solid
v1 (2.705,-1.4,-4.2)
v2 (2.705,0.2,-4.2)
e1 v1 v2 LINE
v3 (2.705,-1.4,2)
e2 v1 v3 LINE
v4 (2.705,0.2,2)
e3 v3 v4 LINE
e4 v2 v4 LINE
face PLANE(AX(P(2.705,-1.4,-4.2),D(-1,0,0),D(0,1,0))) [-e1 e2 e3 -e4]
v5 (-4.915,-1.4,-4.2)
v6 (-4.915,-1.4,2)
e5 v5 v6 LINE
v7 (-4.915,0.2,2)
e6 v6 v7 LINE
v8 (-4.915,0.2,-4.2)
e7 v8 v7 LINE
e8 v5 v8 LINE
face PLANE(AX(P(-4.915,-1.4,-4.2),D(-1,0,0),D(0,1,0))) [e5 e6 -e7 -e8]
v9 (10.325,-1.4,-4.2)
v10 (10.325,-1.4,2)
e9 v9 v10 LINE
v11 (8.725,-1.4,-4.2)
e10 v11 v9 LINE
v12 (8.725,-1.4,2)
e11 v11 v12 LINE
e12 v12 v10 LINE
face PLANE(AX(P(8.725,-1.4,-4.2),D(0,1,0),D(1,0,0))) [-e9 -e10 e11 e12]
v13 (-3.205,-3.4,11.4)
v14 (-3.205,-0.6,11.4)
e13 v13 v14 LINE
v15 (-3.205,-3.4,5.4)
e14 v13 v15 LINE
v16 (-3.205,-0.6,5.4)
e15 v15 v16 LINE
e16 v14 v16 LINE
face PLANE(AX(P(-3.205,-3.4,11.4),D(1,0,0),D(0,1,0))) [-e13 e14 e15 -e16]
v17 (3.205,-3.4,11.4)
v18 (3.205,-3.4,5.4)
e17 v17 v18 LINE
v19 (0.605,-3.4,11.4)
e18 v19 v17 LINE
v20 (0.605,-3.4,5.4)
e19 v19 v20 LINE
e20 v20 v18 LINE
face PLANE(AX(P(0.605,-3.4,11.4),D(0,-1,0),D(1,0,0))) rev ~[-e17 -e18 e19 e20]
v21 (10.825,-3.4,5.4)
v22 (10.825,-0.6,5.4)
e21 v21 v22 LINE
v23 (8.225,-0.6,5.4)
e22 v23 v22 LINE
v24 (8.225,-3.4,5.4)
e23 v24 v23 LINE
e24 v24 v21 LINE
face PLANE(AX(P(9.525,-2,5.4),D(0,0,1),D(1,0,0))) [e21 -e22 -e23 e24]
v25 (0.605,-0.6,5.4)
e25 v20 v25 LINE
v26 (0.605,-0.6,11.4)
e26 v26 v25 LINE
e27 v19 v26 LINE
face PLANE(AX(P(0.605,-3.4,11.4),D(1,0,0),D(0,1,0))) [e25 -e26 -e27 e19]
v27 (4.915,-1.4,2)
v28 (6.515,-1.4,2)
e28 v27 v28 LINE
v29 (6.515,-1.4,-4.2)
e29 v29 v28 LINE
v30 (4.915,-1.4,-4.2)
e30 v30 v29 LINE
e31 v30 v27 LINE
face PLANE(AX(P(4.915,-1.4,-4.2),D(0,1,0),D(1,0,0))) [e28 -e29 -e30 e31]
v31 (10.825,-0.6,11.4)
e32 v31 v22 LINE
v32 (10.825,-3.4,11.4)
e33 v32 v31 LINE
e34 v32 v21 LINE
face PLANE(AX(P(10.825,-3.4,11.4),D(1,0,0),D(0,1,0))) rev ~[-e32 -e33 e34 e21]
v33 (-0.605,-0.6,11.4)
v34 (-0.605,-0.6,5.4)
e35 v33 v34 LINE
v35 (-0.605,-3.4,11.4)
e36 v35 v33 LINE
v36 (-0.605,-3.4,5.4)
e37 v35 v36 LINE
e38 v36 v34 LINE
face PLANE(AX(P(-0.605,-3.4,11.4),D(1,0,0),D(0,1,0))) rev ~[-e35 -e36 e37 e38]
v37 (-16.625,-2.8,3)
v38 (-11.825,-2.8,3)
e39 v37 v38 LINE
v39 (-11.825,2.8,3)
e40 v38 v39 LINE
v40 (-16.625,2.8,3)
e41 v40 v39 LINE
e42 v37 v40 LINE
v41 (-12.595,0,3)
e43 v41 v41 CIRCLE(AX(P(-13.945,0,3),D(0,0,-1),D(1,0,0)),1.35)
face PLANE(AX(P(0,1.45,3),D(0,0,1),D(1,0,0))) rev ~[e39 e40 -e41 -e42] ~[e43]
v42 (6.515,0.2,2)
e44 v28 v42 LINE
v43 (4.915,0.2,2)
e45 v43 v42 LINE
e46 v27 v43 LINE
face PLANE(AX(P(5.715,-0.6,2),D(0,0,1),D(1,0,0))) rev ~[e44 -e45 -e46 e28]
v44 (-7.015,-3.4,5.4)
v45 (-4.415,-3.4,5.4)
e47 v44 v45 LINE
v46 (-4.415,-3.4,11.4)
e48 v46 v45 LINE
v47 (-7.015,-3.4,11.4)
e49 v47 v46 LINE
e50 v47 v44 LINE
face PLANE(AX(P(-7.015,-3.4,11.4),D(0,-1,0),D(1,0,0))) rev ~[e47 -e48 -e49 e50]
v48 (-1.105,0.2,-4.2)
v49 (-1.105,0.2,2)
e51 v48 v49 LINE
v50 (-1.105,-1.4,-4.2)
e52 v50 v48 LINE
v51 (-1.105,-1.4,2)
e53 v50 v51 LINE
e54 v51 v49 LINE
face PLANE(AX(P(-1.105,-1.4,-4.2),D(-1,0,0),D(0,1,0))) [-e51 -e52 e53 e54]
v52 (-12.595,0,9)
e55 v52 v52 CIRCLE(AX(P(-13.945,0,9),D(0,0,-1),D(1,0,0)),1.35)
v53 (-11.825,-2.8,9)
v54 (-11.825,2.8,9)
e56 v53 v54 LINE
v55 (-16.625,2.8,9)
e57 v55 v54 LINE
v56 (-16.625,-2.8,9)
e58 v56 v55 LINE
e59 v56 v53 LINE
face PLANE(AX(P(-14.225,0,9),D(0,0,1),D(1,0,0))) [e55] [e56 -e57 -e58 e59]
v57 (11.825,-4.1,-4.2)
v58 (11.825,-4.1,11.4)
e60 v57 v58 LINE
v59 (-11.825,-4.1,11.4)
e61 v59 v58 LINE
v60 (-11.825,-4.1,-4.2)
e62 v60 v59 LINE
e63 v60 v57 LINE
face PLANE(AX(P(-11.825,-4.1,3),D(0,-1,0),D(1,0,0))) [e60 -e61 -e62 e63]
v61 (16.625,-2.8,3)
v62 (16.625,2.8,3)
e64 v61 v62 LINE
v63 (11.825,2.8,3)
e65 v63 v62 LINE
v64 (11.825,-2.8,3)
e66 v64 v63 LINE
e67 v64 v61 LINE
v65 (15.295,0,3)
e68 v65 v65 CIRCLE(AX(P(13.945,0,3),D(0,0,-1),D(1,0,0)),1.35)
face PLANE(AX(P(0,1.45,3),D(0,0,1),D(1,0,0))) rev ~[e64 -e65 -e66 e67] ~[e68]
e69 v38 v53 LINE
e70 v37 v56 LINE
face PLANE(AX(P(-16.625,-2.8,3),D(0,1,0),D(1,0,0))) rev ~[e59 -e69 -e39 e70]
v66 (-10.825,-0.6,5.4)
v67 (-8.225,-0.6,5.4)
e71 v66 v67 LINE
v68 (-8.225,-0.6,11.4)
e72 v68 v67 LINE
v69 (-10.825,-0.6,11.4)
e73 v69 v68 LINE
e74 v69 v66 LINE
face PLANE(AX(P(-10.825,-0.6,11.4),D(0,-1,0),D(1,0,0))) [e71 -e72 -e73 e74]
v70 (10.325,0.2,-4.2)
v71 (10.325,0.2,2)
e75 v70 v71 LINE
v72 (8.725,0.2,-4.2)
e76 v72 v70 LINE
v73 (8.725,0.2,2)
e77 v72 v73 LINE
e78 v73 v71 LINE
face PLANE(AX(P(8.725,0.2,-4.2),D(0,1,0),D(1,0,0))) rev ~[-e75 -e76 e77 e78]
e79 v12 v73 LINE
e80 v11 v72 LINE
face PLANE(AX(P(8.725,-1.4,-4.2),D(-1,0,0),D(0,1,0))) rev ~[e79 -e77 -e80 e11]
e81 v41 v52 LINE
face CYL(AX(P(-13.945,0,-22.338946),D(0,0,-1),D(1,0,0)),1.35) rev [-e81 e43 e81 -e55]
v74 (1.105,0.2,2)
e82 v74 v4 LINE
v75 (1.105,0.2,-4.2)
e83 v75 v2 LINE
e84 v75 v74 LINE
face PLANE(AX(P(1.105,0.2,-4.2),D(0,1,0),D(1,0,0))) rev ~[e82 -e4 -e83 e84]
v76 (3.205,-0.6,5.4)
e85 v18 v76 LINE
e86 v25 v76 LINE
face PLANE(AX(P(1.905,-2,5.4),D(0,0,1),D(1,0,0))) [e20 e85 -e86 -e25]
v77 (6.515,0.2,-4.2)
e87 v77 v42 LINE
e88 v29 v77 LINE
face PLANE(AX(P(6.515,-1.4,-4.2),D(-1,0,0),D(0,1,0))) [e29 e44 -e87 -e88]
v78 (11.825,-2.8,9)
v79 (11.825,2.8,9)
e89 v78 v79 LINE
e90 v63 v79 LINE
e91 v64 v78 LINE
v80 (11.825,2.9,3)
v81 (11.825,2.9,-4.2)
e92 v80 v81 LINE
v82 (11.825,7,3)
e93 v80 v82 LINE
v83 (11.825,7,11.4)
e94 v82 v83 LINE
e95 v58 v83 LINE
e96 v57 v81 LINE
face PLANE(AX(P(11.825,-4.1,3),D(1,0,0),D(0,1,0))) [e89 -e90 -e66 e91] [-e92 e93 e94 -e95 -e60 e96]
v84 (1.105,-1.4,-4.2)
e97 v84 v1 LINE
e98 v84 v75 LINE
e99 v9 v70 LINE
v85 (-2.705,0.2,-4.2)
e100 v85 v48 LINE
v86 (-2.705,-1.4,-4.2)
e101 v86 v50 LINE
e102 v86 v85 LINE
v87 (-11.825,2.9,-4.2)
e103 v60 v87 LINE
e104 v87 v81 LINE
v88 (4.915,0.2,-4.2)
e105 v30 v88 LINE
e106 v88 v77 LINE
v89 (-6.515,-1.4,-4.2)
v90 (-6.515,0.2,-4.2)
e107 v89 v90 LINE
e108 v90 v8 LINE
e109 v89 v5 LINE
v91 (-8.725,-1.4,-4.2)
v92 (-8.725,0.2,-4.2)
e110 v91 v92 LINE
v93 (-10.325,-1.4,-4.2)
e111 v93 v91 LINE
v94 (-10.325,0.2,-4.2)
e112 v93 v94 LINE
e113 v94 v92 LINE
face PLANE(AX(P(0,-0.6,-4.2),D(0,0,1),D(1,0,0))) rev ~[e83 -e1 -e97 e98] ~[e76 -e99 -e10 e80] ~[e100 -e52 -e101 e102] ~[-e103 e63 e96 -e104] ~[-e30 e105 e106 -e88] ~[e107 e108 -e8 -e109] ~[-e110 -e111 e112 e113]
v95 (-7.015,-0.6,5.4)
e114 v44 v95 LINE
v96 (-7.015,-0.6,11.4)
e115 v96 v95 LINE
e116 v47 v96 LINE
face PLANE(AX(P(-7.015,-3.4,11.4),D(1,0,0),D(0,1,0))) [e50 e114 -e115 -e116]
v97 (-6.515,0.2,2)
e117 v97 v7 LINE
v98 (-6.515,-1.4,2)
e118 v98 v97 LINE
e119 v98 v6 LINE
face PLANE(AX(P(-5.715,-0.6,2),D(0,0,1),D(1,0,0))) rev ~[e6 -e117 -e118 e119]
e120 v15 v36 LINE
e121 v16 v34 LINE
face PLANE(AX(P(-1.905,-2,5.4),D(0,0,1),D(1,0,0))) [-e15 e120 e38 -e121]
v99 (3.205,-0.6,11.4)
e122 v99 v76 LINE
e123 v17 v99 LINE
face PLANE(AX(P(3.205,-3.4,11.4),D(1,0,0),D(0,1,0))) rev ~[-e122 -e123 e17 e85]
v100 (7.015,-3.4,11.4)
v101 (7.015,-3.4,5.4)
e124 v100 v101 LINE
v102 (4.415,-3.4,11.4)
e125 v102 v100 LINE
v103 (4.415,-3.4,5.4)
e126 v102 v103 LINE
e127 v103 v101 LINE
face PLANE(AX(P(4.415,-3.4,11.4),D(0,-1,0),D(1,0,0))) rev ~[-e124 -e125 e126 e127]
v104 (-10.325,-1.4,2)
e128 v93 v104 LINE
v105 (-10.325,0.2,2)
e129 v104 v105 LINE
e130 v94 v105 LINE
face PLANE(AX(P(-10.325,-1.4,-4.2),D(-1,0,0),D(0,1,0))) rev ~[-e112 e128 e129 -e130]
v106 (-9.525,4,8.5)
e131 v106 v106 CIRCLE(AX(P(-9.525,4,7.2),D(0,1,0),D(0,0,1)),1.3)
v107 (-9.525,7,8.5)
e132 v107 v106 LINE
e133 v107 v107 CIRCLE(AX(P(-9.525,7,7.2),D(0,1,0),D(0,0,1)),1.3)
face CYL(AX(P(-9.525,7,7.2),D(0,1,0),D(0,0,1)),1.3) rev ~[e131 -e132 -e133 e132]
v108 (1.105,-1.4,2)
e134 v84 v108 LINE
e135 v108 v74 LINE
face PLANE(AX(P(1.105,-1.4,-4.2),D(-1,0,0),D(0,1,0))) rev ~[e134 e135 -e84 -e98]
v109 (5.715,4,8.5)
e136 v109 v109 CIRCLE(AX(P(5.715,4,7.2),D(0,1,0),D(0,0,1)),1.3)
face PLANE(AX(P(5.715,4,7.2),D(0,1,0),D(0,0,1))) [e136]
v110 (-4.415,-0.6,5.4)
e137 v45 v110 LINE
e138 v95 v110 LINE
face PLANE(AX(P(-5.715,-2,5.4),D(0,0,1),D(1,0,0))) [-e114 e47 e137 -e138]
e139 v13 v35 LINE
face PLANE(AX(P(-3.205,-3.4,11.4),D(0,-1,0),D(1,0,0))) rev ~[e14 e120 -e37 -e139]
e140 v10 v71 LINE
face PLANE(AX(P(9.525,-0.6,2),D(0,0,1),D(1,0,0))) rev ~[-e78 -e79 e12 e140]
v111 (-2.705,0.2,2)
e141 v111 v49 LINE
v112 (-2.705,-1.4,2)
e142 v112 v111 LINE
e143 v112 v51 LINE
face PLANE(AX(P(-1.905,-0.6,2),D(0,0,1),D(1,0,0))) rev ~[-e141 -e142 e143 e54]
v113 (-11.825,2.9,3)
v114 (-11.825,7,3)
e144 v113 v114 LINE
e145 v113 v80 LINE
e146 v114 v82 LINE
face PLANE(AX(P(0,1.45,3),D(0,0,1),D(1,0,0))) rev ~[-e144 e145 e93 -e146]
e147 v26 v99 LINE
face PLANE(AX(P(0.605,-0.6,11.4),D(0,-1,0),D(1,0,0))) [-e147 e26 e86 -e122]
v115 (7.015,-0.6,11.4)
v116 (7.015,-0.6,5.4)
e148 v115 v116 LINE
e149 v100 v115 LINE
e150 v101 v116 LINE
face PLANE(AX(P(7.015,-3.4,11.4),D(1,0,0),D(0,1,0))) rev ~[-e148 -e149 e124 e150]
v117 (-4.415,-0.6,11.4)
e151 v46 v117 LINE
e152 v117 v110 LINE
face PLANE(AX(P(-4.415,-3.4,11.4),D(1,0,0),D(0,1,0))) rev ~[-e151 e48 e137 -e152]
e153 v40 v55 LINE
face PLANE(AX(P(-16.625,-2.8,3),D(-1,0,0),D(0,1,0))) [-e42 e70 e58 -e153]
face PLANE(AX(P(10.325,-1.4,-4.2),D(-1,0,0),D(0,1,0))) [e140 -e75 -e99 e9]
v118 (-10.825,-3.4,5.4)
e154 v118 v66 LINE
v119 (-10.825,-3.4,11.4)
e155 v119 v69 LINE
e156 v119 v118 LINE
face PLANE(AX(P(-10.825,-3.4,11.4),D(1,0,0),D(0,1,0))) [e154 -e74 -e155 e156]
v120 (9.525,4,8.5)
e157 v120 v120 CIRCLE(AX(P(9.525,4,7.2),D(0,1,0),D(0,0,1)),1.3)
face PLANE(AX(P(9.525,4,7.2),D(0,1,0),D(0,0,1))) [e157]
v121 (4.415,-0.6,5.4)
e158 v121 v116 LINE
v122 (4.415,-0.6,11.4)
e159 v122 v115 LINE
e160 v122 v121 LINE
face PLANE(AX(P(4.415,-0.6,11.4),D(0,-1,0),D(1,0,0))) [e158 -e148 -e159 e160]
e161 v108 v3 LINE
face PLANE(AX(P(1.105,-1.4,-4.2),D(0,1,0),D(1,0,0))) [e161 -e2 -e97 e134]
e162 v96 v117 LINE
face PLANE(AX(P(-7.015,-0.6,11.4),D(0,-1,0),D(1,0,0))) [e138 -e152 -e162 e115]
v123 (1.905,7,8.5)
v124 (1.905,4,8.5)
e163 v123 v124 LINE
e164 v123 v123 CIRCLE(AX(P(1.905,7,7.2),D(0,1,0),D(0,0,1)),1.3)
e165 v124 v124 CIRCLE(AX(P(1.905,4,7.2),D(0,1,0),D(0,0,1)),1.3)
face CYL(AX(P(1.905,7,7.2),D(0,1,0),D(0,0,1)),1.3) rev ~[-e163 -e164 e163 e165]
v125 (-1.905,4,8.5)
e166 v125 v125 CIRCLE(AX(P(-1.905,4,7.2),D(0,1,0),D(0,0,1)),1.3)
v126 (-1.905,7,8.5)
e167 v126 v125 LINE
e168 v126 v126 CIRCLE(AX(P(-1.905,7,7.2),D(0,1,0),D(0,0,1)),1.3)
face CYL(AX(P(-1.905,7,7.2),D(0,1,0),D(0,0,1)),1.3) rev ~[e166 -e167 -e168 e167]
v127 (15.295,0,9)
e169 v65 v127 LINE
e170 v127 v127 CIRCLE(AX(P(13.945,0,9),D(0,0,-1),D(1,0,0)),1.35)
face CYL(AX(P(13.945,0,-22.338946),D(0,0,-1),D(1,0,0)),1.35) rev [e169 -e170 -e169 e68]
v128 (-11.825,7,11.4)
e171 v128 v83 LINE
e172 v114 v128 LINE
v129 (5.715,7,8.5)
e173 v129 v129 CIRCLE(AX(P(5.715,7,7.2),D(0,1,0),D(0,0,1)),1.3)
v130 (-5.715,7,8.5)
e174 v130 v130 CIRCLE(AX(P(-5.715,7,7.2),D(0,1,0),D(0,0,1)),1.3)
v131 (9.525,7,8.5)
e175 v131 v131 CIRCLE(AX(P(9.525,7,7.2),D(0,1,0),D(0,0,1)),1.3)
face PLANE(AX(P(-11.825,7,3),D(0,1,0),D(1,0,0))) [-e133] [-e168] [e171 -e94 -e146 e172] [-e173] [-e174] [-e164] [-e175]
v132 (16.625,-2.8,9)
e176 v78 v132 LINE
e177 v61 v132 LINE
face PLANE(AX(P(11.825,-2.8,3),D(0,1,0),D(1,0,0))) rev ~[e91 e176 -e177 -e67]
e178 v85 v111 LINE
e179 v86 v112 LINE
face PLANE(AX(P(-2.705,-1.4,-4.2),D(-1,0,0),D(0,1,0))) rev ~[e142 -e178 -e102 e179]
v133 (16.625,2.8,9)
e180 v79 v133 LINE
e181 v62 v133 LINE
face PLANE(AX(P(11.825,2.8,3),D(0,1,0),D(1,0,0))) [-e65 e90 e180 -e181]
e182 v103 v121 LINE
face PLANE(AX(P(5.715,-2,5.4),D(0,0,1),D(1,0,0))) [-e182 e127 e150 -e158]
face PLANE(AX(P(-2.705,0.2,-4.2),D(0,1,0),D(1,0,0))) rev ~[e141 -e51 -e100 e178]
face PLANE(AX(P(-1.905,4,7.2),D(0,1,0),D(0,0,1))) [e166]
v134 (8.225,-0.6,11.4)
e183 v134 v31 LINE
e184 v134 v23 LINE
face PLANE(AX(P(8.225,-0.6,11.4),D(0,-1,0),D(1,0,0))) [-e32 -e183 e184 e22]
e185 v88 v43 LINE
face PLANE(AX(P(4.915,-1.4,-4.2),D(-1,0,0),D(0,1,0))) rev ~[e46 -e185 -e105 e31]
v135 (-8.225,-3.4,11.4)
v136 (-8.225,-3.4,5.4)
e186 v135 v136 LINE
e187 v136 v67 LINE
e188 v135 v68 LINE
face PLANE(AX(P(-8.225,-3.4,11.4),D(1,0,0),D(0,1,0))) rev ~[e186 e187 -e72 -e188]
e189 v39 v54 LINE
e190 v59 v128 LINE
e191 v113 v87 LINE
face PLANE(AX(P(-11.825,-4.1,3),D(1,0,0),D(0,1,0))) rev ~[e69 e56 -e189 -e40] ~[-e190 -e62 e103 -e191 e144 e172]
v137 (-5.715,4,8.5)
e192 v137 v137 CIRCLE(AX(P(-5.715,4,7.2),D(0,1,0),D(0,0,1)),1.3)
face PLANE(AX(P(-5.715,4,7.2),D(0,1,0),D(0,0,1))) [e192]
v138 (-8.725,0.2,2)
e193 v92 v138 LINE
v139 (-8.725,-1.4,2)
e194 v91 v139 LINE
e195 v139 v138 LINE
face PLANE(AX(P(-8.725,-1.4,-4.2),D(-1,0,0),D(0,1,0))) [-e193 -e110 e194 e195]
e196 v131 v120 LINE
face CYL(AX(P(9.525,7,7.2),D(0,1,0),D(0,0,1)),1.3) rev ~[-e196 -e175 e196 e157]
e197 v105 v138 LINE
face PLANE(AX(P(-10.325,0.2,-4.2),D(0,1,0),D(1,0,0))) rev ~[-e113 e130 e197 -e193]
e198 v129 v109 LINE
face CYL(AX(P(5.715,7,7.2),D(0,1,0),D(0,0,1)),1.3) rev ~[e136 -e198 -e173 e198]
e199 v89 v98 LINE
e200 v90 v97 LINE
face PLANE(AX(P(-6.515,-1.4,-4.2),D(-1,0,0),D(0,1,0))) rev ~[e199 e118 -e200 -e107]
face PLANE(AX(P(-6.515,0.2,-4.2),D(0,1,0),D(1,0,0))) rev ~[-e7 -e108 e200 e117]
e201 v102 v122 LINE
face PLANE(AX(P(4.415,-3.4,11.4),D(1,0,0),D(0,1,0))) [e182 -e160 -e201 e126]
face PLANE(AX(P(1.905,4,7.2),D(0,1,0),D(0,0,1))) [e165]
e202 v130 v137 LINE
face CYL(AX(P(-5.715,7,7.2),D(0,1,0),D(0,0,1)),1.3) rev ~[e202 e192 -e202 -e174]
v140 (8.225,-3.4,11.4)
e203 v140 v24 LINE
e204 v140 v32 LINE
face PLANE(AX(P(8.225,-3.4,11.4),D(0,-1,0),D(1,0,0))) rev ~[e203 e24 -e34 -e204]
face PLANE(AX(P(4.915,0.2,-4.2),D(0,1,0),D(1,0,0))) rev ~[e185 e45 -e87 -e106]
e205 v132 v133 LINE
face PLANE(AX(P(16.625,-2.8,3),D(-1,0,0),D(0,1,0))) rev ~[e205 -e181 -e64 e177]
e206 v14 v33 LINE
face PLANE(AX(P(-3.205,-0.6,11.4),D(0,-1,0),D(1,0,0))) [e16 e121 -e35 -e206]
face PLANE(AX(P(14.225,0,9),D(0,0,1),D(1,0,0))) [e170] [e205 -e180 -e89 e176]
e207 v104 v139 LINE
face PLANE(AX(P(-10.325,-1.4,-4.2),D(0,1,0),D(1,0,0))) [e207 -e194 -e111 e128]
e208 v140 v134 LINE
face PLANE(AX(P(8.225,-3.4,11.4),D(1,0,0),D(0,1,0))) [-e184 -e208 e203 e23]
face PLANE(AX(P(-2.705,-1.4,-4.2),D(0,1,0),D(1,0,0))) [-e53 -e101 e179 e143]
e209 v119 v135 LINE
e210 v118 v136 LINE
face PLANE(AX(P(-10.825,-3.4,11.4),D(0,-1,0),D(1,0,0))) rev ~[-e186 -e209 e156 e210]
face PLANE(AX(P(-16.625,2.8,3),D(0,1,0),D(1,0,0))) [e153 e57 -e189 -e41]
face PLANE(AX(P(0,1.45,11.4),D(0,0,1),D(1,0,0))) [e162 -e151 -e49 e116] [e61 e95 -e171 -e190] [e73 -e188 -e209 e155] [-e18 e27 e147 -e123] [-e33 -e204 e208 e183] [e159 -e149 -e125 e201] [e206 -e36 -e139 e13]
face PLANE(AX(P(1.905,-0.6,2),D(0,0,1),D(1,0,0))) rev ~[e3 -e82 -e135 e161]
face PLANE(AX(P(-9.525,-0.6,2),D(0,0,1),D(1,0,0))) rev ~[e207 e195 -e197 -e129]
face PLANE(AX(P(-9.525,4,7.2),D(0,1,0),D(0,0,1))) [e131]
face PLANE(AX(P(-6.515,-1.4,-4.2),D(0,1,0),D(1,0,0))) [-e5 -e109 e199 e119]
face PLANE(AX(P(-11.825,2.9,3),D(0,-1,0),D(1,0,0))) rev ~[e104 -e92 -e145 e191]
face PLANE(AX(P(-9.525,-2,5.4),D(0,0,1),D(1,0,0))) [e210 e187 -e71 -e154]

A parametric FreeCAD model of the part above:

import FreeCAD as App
import Part
import Sketcher

V = App.Vector
Q = App.Units.Quantity

doc = App.newDocument("Part")
body = doc.addObject("PartDesign::Body", "Body")

sketch1 = body.newObject("Sketcher::SketchObject", "Sketch")
sketch1.AttachmentSupport = (doc.getObject("XY_Plane"), [""])
sketch1.MapMode = "FlatFace"
sketch1.AttachmentOffset = App.Placement(V(0, 0, 3), App.Rotation())
sketch1.addGeometry(Part.LineSegment(V(-12, 7, 0), V(-12, -4, 0)), False)
sketch1.addGeometry(Part.LineSegment(V(-12, -4, 0), V(12, -4, 0)), False)
sketch1.addGeometry(Part.LineSegment(V(12, -4, 0), V(12, 7, 0)), False)
sketch1.addGeometry(Part.LineSegment(V(12, 7, 0), V(-12, 7, 0)), False)
sketch1.addConstraint(Sketcher.Constraint("Coincident", 0, 2, 1, 1))
sketch1.addConstraint(Sketcher.Constraint("Coincident", 1, 2, 2, 1))
sketch1.addConstraint(Sketcher.Constraint("Coincident", 2, 2, 3, 1))
sketch1.addConstraint(Sketcher.Constraint("Coincident", 3, 2, 0, 1))
sketch1.addConstraint(Sketcher.Constraint("Vertical", 0))
sketch1.addConstraint(Sketcher.Constraint("Horizontal", 1))
sketch1.addConstraint(Sketcher.Constraint("Vertical", 2))
sketch1.addConstraint(Sketcher.Constraint("Horizontal", 3))
sketch1.addConstraint(Sketcher.Constraint("DistanceY", 0, 2, 0, 1, Q("11.1 mm")))
sketch1.addConstraint(Sketcher.Constraint("DistanceY", -1, 1, 2, 2, Q("7 mm")))
sketch1.addConstraint(Sketcher.Constraint("DistanceX", 1, 1, 1, 2, Q("23.65 mm")))
sketch1.addConstraint(Sketcher.Constraint("DistanceX", 0, 2, -1, 1, Q("11.825 mm")))
pad1 = body.newObject("PartDesign::Pad", "Pad")
pad1.Profile = sketch1
pad1.Length = 8.4

sketch2 = body.newObject("Sketcher::SketchObject", "Sketch001")
sketch2.AttachmentSupport = (doc.getObject("XY_Plane"), [""])
sketch2.MapMode = "FlatFace"
sketch2.AttachmentOffset = App.Placement(V(0, 0, 3), App.Rotation())
sketch2.addGeometry(Part.LineSegment(V(11.8, 2.8, 0), V(11.8, -2.8, 0)), False)
sketch2.addGeometry(Part.LineSegment(V(11.8, -2.8, 0), V(16.6, -2.8, 0)), False)
sketch2.addGeometry(Part.LineSegment(V(16.6, -2.8, 0), V(16.6, 2.8, 0)), False)
sketch2.addGeometry(Part.LineSegment(V(16.6, 2.8, 0), V(11.8, 2.8, 0)), False)
sketch2.addGeometry(Part.LineSegment(V(-16.6, 2.8, 0), V(-16.6, -2.8, 0)), False)
sketch2.addGeometry(Part.LineSegment(V(-16.6, -2.8, 0), V(-11.8, -2.8, 0)), False)
sketch2.addGeometry(Part.LineSegment(V(-11.8, -2.8, 0), V(-11.8, 2.8, 0)), False)
sketch2.addGeometry(Part.LineSegment(V(-11.8, 2.8, 0), V(-16.6, 2.8, 0)), False)
sketch2.addConstraint(Sketcher.Constraint("Coincident", 0, 2, 1, 1))
sketch2.addConstraint(Sketcher.Constraint("Coincident", 1, 2, 2, 1))
sketch2.addConstraint(Sketcher.Constraint("Coincident", 2, 2, 3, 1))
sketch2.addConstraint(Sketcher.Constraint("Coincident", 3, 2, 0, 1))
sketch2.addConstraint(Sketcher.Constraint("Coincident", 4, 2, 5, 1))
sketch2.addConstraint(Sketcher.Constraint("Coincident", 5, 2, 6, 1))
sketch2.addConstraint(Sketcher.Constraint("Coincident", 6, 2, 7, 1))
sketch2.addConstraint(Sketcher.Constraint("Coincident", 7, 2, 4, 1))
sketch2.addConstraint(Sketcher.Constraint("Vertical", 0))
sketch2.addConstraint(Sketcher.Constraint("Horizontal", 1))
sketch2.addConstraint(Sketcher.Constraint("Vertical", 2))
sketch2.addConstraint(Sketcher.Constraint("Horizontal", 3))
sketch2.addConstraint(Sketcher.Constraint("Vertical", 4))
sketch2.addConstraint(Sketcher.Constraint("Horizontal", 5))
sketch2.addConstraint(Sketcher.Constraint("Vertical", 6))
sketch2.addConstraint(Sketcher.Constraint("Horizontal", 7))
sketch2.addConstraint(Sketcher.Constraint("Symmetric", 2, 2, 4, 2, -1, 1))
sketch2.addConstraint(Sketcher.Constraint("Symmetric", 0, 2, 6, 2, -1, 1))
sketch2.addConstraint(Sketcher.Constraint("Horizontal", 1, 2, 4, 2))
sketch2.addConstraint(Sketcher.Constraint("DistanceX", 1, 1, 1, 2, Q("4.8 mm")))
sketch2.addConstraint(Sketcher.Constraint("DistanceY", 0, 2, 0, 1, Q("5.6 mm")))
sketch2.addConstraint(Sketcher.Constraint("DistanceX", 4, 2, 0, 2, Q("28.45 mm")))
pad2 = body.newObject("PartDesign::Pad", "Pad001")
pad2.Profile = sketch2
pad2.Length = 6

sketch3 = body.newObject("Sketcher::SketchObject", "Sketch002")
sketch3.AttachmentSupport = (doc.getObject("XY_Plane"), [""])
sketch3.MapMode = "FlatFace"
sketch3.AttachmentOffset = App.Placement(V(0, 0, 3), App.Rotation())
sketch3.addGeometry(Part.LineSegment(V(-12, 3, 0), V(-12, -4, 0)), False)
sketch3.addGeometry(Part.LineSegment(V(-12, -4, 0), V(12, -4, 0)), False)
sketch3.addGeometry(Part.LineSegment(V(12, -4, 0), V(12, 3, 0)), False)
sketch3.addGeometry(Part.LineSegment(V(12, 3, 0), V(-12, 3, 0)), False)
sketch3.addConstraint(Sketcher.Constraint("Coincident", 0, 2, 1, 1))
sketch3.addConstraint(Sketcher.Constraint("Coincident", 1, 2, 2, 1))
sketch3.addConstraint(Sketcher.Constraint("Coincident", 2, 2, 3, 1))
sketch3.addConstraint(Sketcher.Constraint("Coincident", 3, 2, 0, 1))
sketch3.addConstraint(Sketcher.Constraint("Vertical", 0))
sketch3.addConstraint(Sketcher.Constraint("Horizontal", 1))
sketch3.addConstraint(Sketcher.Constraint("Vertical", 2))
sketch3.addConstraint(Sketcher.Constraint("Horizontal", 3))
sketch3.addConstraint(Sketcher.Constraint("DistanceY", 0, 2, 0, 1, Q("7 mm")))
sketch3.addConstraint(Sketcher.Constraint("DistanceX", 1, 1, 1, 2, Q("23.65 mm")))
sketch3.addConstraint(Sketcher.Constraint("DistanceY", 0, 2, -1, 1, Q("4.1 mm")))
sketch3.addConstraint(Sketcher.Constraint("DistanceX", 0, 2, -1, 1, Q("11.825 mm")))
pad3 = body.newObject("PartDesign::Pad", "Pad002")
pad3.Profile = sketch3
pad3.Length = 7.2
pad3.Reversed = True

sketch4 = body.newObject("Sketcher::SketchObject", "Sketch003")
sketch4.AttachmentSupport = (doc.getObject("XY_Plane"), [""])
sketch4.MapMode = "FlatFace"
sketch4.addGeometry(Part.Circle(V(-13.9, 0, 0), V(0, 0, 1), 1.4), False)
sketch4.addGeometry(Part.Circle(V(13.9, 0, 0), V(0, 0, 1), 1.4), False)
sketch4.addConstraint(Sketcher.Constraint("Equal", 0, 1))
sketch4.addConstraint(Sketcher.Constraint("Symmetric", 0, 3, 1, 3, -1, 1))
sketch4.addConstraint(Sketcher.Constraint("PointOnObject", 0, 3, -1))
sketch4.addConstraint(Sketcher.Constraint("Diameter", 0, Q("2.7 mm")))
sketch4.addConstraint(Sketcher.Constraint("DistanceX", 0, 3, 1, 3, Q("27.89 mm")))
pocket1 = body.newObject("PartDesign::Pocket", "Pocket")
pocket1.Profile = sketch4
pocket1.Type = "ThroughAll"
pocket1.Midplane = True

sketch5 = body.newObject("Sketcher::SketchObject", "Sketch004")
sketch5.AttachmentSupport = (doc.getObject("XY_Plane"), [""])
sketch5.MapMode = "FlatFace"
sketch5.AttachmentOffset = App.Placement(V(0, 0, 11.4), App.Rotation())
sketch5.addGeometry(Part.LineSegment(V(-10.8, -0.6, 0), V(-10.8, -3.4, 0)), False)
sketch5.addGeometry(Part.LineSegment(V(-10.8, -3.4, 0), V(-8.2, -3.4, 0)), False)
sketch5.addGeometry(Part.LineSegment(V(-8.2, -3.4, 0), V(-8.2, -0.6, 0)), False)
sketch5.addGeometry(Part.LineSegment(V(-8.2, -0.6, 0), V(-10.8, -0.6, 0)), False)
sketch5.addGeometry(Part.LineSegment(V(-7, -0.6, 0), V(-7, -3.4, 0)), False)
sketch5.addGeometry(Part.LineSegment(V(-7, -3.4, 0), V(-4.4, -3.4, 0)), False)
sketch5.addGeometry(Part.LineSegment(V(-4.4, -3.4, 0), V(-4.4, -0.6, 0)), False)
sketch5.addGeometry(Part.LineSegment(V(-4.4, -0.6, 0), V(-7, -0.6, 0)), False)
sketch5.addGeometry(Part.LineSegment(V(-3.2, -0.6, 0), V(-3.2, -3.4, 0)), False)
sketch5.addGeometry(Part.LineSegment(V(-3.2, -3.4, 0), V(-0.6, -3.4, 0)), False)
sketch5.addGeometry(Part.LineSegment(V(-0.6, -3.4, 0), V(-0.6, -0.6, 0)), False)
sketch5.addGeometry(Part.LineSegment(V(-0.6, -0.6, 0), V(-3.2, -0.6, 0)), False)
sketch5.addGeometry(Part.LineSegment(V(0.6, -0.6, 0), V(0.6, -3.4, 0)), False)
sketch5.addGeometry(Part.LineSegment(V(0.6, -3.4, 0), V(3.2, -3.4, 0)), False)
sketch5.addGeometry(Part.LineSegment(V(3.2, -3.4, 0), V(3.2, -0.6, 0)), False)
sketch5.addGeometry(Part.LineSegment(V(3.2, -0.6, 0), V(0.6, -0.6, 0)), False)
sketch5.addGeometry(Part.LineSegment(V(4.4, -0.6, 0), V(4.4, -3.4, 0)), False)
sketch5.addGeometry(Part.LineSegment(V(4.4, -3.4, 0), V(7, -3.4, 0)), False)
sketch5.addGeometry(Part.LineSegment(V(7, -3.4, 0), V(7, -0.6, 0)), False)
sketch5.addGeometry(Part.LineSegment(V(7, -0.6, 0), V(4.4, -0.6, 0)), False)
sketch5.addGeometry(Part.LineSegment(V(8.2, -0.6, 0), V(8.2, -3.4, 0)), False)
sketch5.addGeometry(Part.LineSegment(V(8.2, -3.4, 0), V(10.8, -3.4, 0)), False)
sketch5.addGeometry(Part.LineSegment(V(10.8, -3.4, 0), V(10.8, -0.6, 0)), False)
sketch5.addGeometry(Part.LineSegment(V(10.8, -0.6, 0), V(8.2, -0.6, 0)), False)
sketch5.addConstraint(Sketcher.Constraint("Coincident", 0, 2, 1, 1))
sketch5.addConstraint(Sketcher.Constraint("Coincident", 1, 2, 2, 1))
sketch5.addConstraint(Sketcher.Constraint("Coincident", 2, 2, 3, 1))
sketch5.addConstraint(Sketcher.Constraint("Coincident", 3, 2, 0, 1))
sketch5.addConstraint(Sketcher.Constraint("Coincident", 4, 2, 5, 1))
sketch5.addConstraint(Sketcher.Constraint("Coincident", 5, 2, 6, 1))
sketch5.addConstraint(Sketcher.Constraint("Coincident", 6, 2, 7, 1))
sketch5.addConstraint(Sketcher.Constraint("Coincident", 7, 2, 4, 1))
sketch5.addConstraint(Sketcher.Constraint("Coincident", 8, 2, 9, 1))
sketch5.addConstraint(Sketcher.Constraint("Coincident", 9, 2, 10, 1))
sketch5.addConstraint(Sketcher.Constraint("Coincident", 10, 2, 11, 1))
sketch5.addConstraint(Sketcher.Constraint("Coincident", 11, 2, 8, 1))
sketch5.addConstraint(Sketcher.Constraint("Coincident", 12, 2, 13, 1))
sketch5.addConstraint(Sketcher.Constraint("Coincident", 13, 2, 14, 1))
sketch5.addConstraint(Sketcher.Constraint("Coincident", 14, 2, 15, 1))
sketch5.addConstraint(Sketcher.Constraint("Coincident", 15, 2, 12, 1))
sketch5.addConstraint(Sketcher.Constraint("Coincident", 16, 2, 17, 1))
sketch5.addConstraint(Sketcher.Constraint("Coincident", 17, 2, 18, 1))
sketch5.addConstraint(Sketcher.Constraint("Coincident", 18, 2, 19, 1))
sketch5.addConstraint(Sketcher.Constraint("Coincident", 19, 2, 16, 1))
sketch5.addConstraint(Sketcher.Constraint("Coincident", 20, 2, 21, 1))
sketch5.addConstraint(Sketcher.Constraint("Coincident", 21, 2, 22, 1))
sketch5.addConstraint(Sketcher.Constraint("Coincident", 22, 2, 23, 1))
sketch5.addConstraint(Sketcher.Constraint("Coincident", 23, 2, 20, 1))
sketch5.addConstraint(Sketcher.Constraint("Vertical", 0))
sketch5.addConstraint(Sketcher.Constraint("Horizontal", 1))
sketch5.addConstraint(Sketcher.Constraint("Vertical", 2))
sketch5.addConstraint(Sketcher.Constraint("Horizontal", 3))
sketch5.addConstraint(Sketcher.Constraint("Vertical", 4))
sketch5.addConstraint(Sketcher.Constraint("Horizontal", 5))
sketch5.addConstraint(Sketcher.Constraint("Vertical", 6))
sketch5.addConstraint(Sketcher.Constraint("Horizontal", 7))
sketch5.addConstraint(Sketcher.Constraint("Vertical", 8))
sketch5.addConstraint(Sketcher.Constraint("Horizontal", 9))
sketch5.addConstraint(Sketcher.Constraint("Vertical", 10))
sketch5.addConstraint(Sketcher.Constraint("Horizontal", 11))
sketch5.addConstraint(Sketcher.Constraint("Vertical", 12))
sketch5.addConstraint(Sketcher.Constraint("Horizontal", 13))
sketch5.addConstraint(Sketcher.Constraint("Vertical", 14))
sketch5.addConstraint(Sketcher.Constraint("Horizontal", 15))
sketch5.addConstraint(Sketcher.Constraint("Vertical", 16))
sketch5.addConstraint(Sketcher.Constraint("Horizontal", 17))
sketch5.addConstraint(Sketcher.Constraint("Vertical", 18))
sketch5.addConstraint(Sketcher.Constraint("Horizontal", 19))
sketch5.addConstraint(Sketcher.Constraint("Vertical", 20))
sketch5.addConstraint(Sketcher.Constraint("Horizontal", 21))
sketch5.addConstraint(Sketcher.Constraint("Vertical", 22))
sketch5.addConstraint(Sketcher.Constraint("Horizontal", 23))
sketch5.addConstraint(Sketcher.Constraint("Symmetric", 9, 2, 12, 2, -2))
sketch5.addConstraint(Sketcher.Constraint("Symmetric", 11, 2, 14, 2, -2))
sketch5.addConstraint(Sketcher.Constraint("Symmetric", 5, 2, 16, 2, -2))
sketch5.addConstraint(Sketcher.Constraint("Symmetric", 7, 2, 18, 2, -2))
sketch5.addConstraint(Sketcher.Constraint("Symmetric", 1, 2, 20, 2, -2))
sketch5.addConstraint(Sketcher.Constraint("Symmetric", 3, 2, 22, 2, -2))
sketch5.addConstraint(Sketcher.Constraint("Horizontal", 1, 2, 4, 2))
sketch5.addConstraint(Sketcher.Constraint("Horizontal", 3, 2, 6, 2))
sketch5.addConstraint(Sketcher.Constraint("Horizontal", 5, 2, 8, 2))
sketch5.addConstraint(Sketcher.Constraint("Horizontal", 7, 2, 10, 2))
sketch5.addConstraint(Sketcher.Constraint("Equal", 3, 5))
sketch5.addConstraint(Sketcher.Constraint("Equal", 7, 9))
sketch5.addConstraint(Sketcher.Constraint("DistanceX", 1, 1, 1, 2, Q("2.6 mm")))
sketch5.addConstraint(Sketcher.Constraint("DistanceY", 0, 2, 0, 1, Q("2.8 mm")))
sketch5.addConstraint(Sketcher.Constraint("DistanceY", 0, 2, -1, 1, Q("3.4 mm")))
sketch5.addConstraint(Sketcher.Constraint("DistanceX", 1, 2, 4, 2, Q("1.21 mm")))
sketch5.addConstraint(Sketcher.Constraint("DistanceX", 5, 2, 8, 2, Q("1.21 mm")))
sketch5.addConstraint(Sketcher.Constraint("DistanceX", 9, 2, 12, 2, Q("1.21 mm")))
pocket2 = body.newObject("PartDesign::Pocket", "Pocket001")
pocket2.Profile = sketch5
pocket2.Length = 6

sketch6 = body.newObject("Sketcher::SketchObject", "Sketch005")
sketch6.AttachmentSupport = (doc.getObject("XY_Plane"), [""])
sketch6.MapMode = "FlatFace"
sketch6.AttachmentOffset = App.Placement(V(0, 0, -4.2), App.Rotation())
sketch6.addGeometry(Part.LineSegment(V(-10.3, 0.2, 0), V(-10.3, -1.4, 0)), False)
sketch6.addGeometry(Part.LineSegment(V(-10.3, -1.4, 0), V(-8.7, -1.4, 0)), False)
sketch6.addGeometry(Part.LineSegment(V(-8.7, -1.4, 0), V(-8.7, 0.2, 0)), False)
sketch6.addGeometry(Part.LineSegment(V(-8.7, 0.2, 0), V(-10.3, 0.2, 0)), False)
sketch6.addGeometry(Part.LineSegment(V(-6.5, 0.2, 0), V(-6.5, -1.4, 0)), False)
sketch6.addGeometry(Part.LineSegment(V(-6.5, -1.4, 0), V(-4.9, -1.4, 0)), False)
sketch6.addGeometry(Part.LineSegment(V(-4.9, -1.4, 0), V(-4.9, 0.2, 0)), False)
sketch6.addGeometry(Part.LineSegment(V(-4.9, 0.2, 0), V(-6.5, 0.2, 0)), False)
sketch6.addGeometry(Part.LineSegment(V(-2.7, 0.2, 0), V(-2.7, -1.4, 0)), False)
sketch6.addGeometry(Part.LineSegment(V(-2.7, -1.4, 0), V(-1.1, -1.4, 0)), False)
sketch6.addGeometry(Part.LineSegment(V(-1.1, -1.4, 0), V(-1.1, 0.2, 0)), False)
sketch6.addGeometry(Part.LineSegment(V(-1.1, 0.2, 0), V(-2.7, 0.2, 0)), False)
sketch6.addGeometry(Part.LineSegment(V(1.1, 0.2, 0), V(1.1, -1.4, 0)), False)
sketch6.addGeometry(Part.LineSegment(V(1.1, -1.4, 0), V(2.7, -1.4, 0)), False)
sketch6.addGeometry(Part.LineSegment(V(2.7, -1.4, 0), V(2.7, 0.2, 0)), False)
sketch6.addGeometry(Part.LineSegment(V(2.7, 0.2, 0), V(1.1, 0.2, 0)), False)
sketch6.addGeometry(Part.LineSegment(V(4.9, 0.2, 0), V(4.9, -1.4, 0)), False)
sketch6.addGeometry(Part.LineSegment(V(4.9, -1.4, 0), V(6.5, -1.4, 0)), False)
sketch6.addGeometry(Part.LineSegment(V(6.5, -1.4, 0), V(6.5, 0.2, 0)), False)
sketch6.addGeometry(Part.LineSegment(V(6.5, 0.2, 0), V(4.9, 0.2, 0)), False)
sketch6.addGeometry(Part.LineSegment(V(8.7, 0.2, 0), V(8.7, -1.4, 0)), False)
sketch6.addGeometry(Part.LineSegment(V(8.7, -1.4, 0), V(10.3, -1.4, 0)), False)
sketch6.addGeometry(Part.LineSegment(V(10.3, -1.4, 0), V(10.3, 0.2, 0)), False)
sketch6.addGeometry(Part.LineSegment(V(10.3, 0.2, 0), V(8.7, 0.2, 0)), False)
sketch6.addConstraint(Sketcher.Constraint("Coincident", 0, 2, 1, 1))
sketch6.addConstraint(Sketcher.Constraint("Coincident", 1, 2, 2, 1))
sketch6.addConstraint(Sketcher.Constraint("Coincident", 2, 2, 3, 1))
sketch6.addConstraint(Sketcher.Constraint("Coincident", 3, 2, 0, 1))
sketch6.addConstraint(Sketcher.Constraint("Coincident", 4, 2, 5, 1))
sketch6.addConstraint(Sketcher.Constraint("Coincident", 5, 2, 6, 1))
sketch6.addConstraint(Sketcher.Constraint("Coincident", 6, 2, 7, 1))
sketch6.addConstraint(Sketcher.Constraint("Coincident", 7, 2, 4, 1))
sketch6.addConstraint(Sketcher.Constraint("Coincident", 8, 2, 9, 1))
sketch6.addConstraint(Sketcher.Constraint("Coincident", 9, 2, 10, 1))
sketch6.addConstraint(Sketcher.Constraint("Coincident", 10, 2, 11, 1))
sketch6.addConstraint(Sketcher.Constraint("Coincident", 11, 2, 8, 1))
sketch6.addConstraint(Sketcher.Constraint("Coincident", 12, 2, 13, 1))
sketch6.addConstraint(Sketcher.Constraint("Coincident", 13, 2, 14, 1))
sketch6.addConstraint(Sketcher.Constraint("Coincident", 14, 2, 15, 1))
sketch6.addConstraint(Sketcher.Constraint("Coincident", 15, 2, 12, 1))
sketch6.addConstraint(Sketcher.Constraint("Coincident", 16, 2, 17, 1))
sketch6.addConstraint(Sketcher.Constraint("Coincident", 17, 2, 18, 1))
sketch6.addConstraint(Sketcher.Constraint("Coincident", 18, 2, 19, 1))
sketch6.addConstraint(Sketcher.Constraint("Coincident", 19, 2, 16, 1))
sketch6.addConstraint(Sketcher.Constraint("Coincident", 20, 2, 21, 1))
sketch6.addConstraint(Sketcher.Constraint("Coincident", 21, 2, 22, 1))
sketch6.addConstraint(Sketcher.Constraint("Coincident", 22, 2, 23, 1))
sketch6.addConstraint(Sketcher.Constraint("Coincident", 23, 2, 20, 1))
sketch6.addConstraint(Sketcher.Constraint("Vertical", 0))
sketch6.addConstraint(Sketcher.Constraint("Horizontal", 1))
sketch6.addConstraint(Sketcher.Constraint("Vertical", 2))
sketch6.addConstraint(Sketcher.Constraint("Horizontal", 3))
sketch6.addConstraint(Sketcher.Constraint("Vertical", 4))
sketch6.addConstraint(Sketcher.Constraint("Horizontal", 5))
sketch6.addConstraint(Sketcher.Constraint("Vertical", 6))
sketch6.addConstraint(Sketcher.Constraint("Horizontal", 7))
sketch6.addConstraint(Sketcher.Constraint("Vertical", 8))
sketch6.addConstraint(Sketcher.Constraint("Horizontal", 9))
sketch6.addConstraint(Sketcher.Constraint("Vertical", 10))
sketch6.addConstraint(Sketcher.Constraint("Horizontal", 11))
sketch6.addConstraint(Sketcher.Constraint("Vertical", 12))
sketch6.addConstraint(Sketcher.Constraint("Horizontal", 13))
sketch6.addConstraint(Sketcher.Constraint("Vertical", 14))
sketch6.addConstraint(Sketcher.Constraint("Horizontal", 15))
sketch6.addConstraint(Sketcher.Constraint("Vertical", 16))
sketch6.addConstraint(Sketcher.Constraint("Horizontal", 17))
sketch6.addConstraint(Sketcher.Constraint("Vertical", 18))
sketch6.addConstraint(Sketcher.Constraint("Horizontal", 19))
sketch6.addConstraint(Sketcher.Constraint("Vertical", 20))
sketch6.addConstraint(Sketcher.Constraint("Horizontal", 21))
sketch6.addConstraint(Sketcher.Constraint("Vertical", 22))
sketch6.addConstraint(Sketcher.Constraint("Horizontal", 23))
sketch6.addConstraint(Sketcher.Constraint("Symmetric", 9, 2, 12, 2, -2))
sketch6.addConstraint(Sketcher.Constraint("Symmetric", 11, 2, 14, 2, -2))
sketch6.addConstraint(Sketcher.Constraint("Symmetric", 5, 2, 16, 2, -2))
sketch6.addConstraint(Sketcher.Constraint("Symmetric", 7, 2, 18, 2, -2))
sketch6.addConstraint(Sketcher.Constraint("Symmetric", 1, 2, 20, 2, -2))
sketch6.addConstraint(Sketcher.Constraint("Symmetric", 3, 2, 22, 2, -2))
sketch6.addConstraint(Sketcher.Constraint("Horizontal", 1, 2, 4, 2))
sketch6.addConstraint(Sketcher.Constraint("Horizontal", 3, 2, 6, 2))
sketch6.addConstraint(Sketcher.Constraint("Horizontal", 5, 2, 8, 2))
sketch6.addConstraint(Sketcher.Constraint("Horizontal", 7, 2, 10, 2))
sketch6.addConstraint(Sketcher.Constraint("Equal", 3, 5))
sketch6.addConstraint(Sketcher.Constraint("Equal", 7, 9))
sketch6.addConstraint(Sketcher.Constraint("Equal", 23, 0))
sketch6.addConstraint(Sketcher.Constraint("DistanceX", 1, 1, 1, 2, Q("1.6 mm")))
sketch6.addConstraint(Sketcher.Constraint("DistanceY", 0, 2, -1, 1, Q("1.4 mm")))
sketch6.addConstraint(Sketcher.Constraint("DistanceX", 1, 2, 4, 2, Q("2.21 mm")))
sketch6.addConstraint(Sketcher.Constraint("DistanceX", 5, 2, 8, 2, Q("2.21 mm")))
sketch6.addConstraint(Sketcher.Constraint("DistanceX", 9, 2, 12, 2, Q("2.21 mm")))
pocket3 = body.newObject("PartDesign::Pocket", "Pocket002")
pocket3.Profile = sketch6
pocket3.Length = 6.2
pocket3.Reversed = True

sketch7 = body.newObject("Sketcher::SketchObject", "Sketch006")
sketch7.AttachmentSupport = (doc.getObject("XZ_Plane"), [""])
sketch7.MapMode = "FlatFace"
sketch7.AttachmentOffset = App.Placement(V(0, 0, -7), App.Rotation())
sketch7.addGeometry(Part.Circle(V(-9.5, 7.2, 0), V(0, 0, 1), 1.3), False)
sketch7.addGeometry(Part.Circle(V(-5.7, 7.2, 0), V(0, 0, 1), 1.3), False)
sketch7.addGeometry(Part.Circle(V(-1.9, 7.2, 0), V(0, 0, 1), 1.3), False)
sketch7.addGeometry(Part.Circle(V(1.9, 7.2, 0), V(0, 0, 1), 1.3), False)
sketch7.addGeometry(Part.Circle(V(5.7, 7.2, 0), V(0, 0, 1), 1.3), False)
sketch7.addGeometry(Part.Circle(V(9.5, 7.2, 0), V(0, 0, 1), 1.3), False)
sketch7.addConstraint(Sketcher.Constraint("Equal", 0, 1))
sketch7.addConstraint(Sketcher.Constraint("Equal", 1, 2))
sketch7.addConstraint(Sketcher.Constraint("Equal", 2, 3))
sketch7.addConstraint(Sketcher.Constraint("Equal", 3, 4))
sketch7.addConstraint(Sketcher.Constraint("Equal", 4, 5))
sketch7.addConstraint(Sketcher.Constraint("Symmetric", 2, 3, 3, 3, -2))
sketch7.addConstraint(Sketcher.Constraint("Symmetric", 1, 3, 4, 3, -2))
sketch7.addConstraint(Sketcher.Constraint("Symmetric", 0, 3, 5, 3, -2))
sketch7.addConstraint(Sketcher.Constraint("Horizontal", 0, 3, 1, 3))
sketch7.addConstraint(Sketcher.Constraint("Horizontal", 1, 3, 2, 3))
sketch7.addConstraint(Sketcher.Constraint("Diameter", 0, Q("2.6 mm")))
sketch7.addConstraint(Sketcher.Constraint("DistanceY", -1, 1, 0, 3, Q("7.2 mm")))
sketch7.addConstraint(Sketcher.Constraint("DistanceX", 0, 3, 1, 3, Q("3.81 mm")))
sketch7.addConstraint(Sketcher.Constraint("DistanceX", 1, 3, 2, 3, Q("3.81 mm")))
sketch7.addConstraint(Sketcher.Constraint("DistanceX", 2, 3, 3, 3, Q("3.81 mm")))
pocket4 = body.newObject("PartDesign::Pocket", "Pocket003")
pocket4.Profile = sketch7
pocket4.Length = 3
pocket4.Reversed = True

doc.recompute()
